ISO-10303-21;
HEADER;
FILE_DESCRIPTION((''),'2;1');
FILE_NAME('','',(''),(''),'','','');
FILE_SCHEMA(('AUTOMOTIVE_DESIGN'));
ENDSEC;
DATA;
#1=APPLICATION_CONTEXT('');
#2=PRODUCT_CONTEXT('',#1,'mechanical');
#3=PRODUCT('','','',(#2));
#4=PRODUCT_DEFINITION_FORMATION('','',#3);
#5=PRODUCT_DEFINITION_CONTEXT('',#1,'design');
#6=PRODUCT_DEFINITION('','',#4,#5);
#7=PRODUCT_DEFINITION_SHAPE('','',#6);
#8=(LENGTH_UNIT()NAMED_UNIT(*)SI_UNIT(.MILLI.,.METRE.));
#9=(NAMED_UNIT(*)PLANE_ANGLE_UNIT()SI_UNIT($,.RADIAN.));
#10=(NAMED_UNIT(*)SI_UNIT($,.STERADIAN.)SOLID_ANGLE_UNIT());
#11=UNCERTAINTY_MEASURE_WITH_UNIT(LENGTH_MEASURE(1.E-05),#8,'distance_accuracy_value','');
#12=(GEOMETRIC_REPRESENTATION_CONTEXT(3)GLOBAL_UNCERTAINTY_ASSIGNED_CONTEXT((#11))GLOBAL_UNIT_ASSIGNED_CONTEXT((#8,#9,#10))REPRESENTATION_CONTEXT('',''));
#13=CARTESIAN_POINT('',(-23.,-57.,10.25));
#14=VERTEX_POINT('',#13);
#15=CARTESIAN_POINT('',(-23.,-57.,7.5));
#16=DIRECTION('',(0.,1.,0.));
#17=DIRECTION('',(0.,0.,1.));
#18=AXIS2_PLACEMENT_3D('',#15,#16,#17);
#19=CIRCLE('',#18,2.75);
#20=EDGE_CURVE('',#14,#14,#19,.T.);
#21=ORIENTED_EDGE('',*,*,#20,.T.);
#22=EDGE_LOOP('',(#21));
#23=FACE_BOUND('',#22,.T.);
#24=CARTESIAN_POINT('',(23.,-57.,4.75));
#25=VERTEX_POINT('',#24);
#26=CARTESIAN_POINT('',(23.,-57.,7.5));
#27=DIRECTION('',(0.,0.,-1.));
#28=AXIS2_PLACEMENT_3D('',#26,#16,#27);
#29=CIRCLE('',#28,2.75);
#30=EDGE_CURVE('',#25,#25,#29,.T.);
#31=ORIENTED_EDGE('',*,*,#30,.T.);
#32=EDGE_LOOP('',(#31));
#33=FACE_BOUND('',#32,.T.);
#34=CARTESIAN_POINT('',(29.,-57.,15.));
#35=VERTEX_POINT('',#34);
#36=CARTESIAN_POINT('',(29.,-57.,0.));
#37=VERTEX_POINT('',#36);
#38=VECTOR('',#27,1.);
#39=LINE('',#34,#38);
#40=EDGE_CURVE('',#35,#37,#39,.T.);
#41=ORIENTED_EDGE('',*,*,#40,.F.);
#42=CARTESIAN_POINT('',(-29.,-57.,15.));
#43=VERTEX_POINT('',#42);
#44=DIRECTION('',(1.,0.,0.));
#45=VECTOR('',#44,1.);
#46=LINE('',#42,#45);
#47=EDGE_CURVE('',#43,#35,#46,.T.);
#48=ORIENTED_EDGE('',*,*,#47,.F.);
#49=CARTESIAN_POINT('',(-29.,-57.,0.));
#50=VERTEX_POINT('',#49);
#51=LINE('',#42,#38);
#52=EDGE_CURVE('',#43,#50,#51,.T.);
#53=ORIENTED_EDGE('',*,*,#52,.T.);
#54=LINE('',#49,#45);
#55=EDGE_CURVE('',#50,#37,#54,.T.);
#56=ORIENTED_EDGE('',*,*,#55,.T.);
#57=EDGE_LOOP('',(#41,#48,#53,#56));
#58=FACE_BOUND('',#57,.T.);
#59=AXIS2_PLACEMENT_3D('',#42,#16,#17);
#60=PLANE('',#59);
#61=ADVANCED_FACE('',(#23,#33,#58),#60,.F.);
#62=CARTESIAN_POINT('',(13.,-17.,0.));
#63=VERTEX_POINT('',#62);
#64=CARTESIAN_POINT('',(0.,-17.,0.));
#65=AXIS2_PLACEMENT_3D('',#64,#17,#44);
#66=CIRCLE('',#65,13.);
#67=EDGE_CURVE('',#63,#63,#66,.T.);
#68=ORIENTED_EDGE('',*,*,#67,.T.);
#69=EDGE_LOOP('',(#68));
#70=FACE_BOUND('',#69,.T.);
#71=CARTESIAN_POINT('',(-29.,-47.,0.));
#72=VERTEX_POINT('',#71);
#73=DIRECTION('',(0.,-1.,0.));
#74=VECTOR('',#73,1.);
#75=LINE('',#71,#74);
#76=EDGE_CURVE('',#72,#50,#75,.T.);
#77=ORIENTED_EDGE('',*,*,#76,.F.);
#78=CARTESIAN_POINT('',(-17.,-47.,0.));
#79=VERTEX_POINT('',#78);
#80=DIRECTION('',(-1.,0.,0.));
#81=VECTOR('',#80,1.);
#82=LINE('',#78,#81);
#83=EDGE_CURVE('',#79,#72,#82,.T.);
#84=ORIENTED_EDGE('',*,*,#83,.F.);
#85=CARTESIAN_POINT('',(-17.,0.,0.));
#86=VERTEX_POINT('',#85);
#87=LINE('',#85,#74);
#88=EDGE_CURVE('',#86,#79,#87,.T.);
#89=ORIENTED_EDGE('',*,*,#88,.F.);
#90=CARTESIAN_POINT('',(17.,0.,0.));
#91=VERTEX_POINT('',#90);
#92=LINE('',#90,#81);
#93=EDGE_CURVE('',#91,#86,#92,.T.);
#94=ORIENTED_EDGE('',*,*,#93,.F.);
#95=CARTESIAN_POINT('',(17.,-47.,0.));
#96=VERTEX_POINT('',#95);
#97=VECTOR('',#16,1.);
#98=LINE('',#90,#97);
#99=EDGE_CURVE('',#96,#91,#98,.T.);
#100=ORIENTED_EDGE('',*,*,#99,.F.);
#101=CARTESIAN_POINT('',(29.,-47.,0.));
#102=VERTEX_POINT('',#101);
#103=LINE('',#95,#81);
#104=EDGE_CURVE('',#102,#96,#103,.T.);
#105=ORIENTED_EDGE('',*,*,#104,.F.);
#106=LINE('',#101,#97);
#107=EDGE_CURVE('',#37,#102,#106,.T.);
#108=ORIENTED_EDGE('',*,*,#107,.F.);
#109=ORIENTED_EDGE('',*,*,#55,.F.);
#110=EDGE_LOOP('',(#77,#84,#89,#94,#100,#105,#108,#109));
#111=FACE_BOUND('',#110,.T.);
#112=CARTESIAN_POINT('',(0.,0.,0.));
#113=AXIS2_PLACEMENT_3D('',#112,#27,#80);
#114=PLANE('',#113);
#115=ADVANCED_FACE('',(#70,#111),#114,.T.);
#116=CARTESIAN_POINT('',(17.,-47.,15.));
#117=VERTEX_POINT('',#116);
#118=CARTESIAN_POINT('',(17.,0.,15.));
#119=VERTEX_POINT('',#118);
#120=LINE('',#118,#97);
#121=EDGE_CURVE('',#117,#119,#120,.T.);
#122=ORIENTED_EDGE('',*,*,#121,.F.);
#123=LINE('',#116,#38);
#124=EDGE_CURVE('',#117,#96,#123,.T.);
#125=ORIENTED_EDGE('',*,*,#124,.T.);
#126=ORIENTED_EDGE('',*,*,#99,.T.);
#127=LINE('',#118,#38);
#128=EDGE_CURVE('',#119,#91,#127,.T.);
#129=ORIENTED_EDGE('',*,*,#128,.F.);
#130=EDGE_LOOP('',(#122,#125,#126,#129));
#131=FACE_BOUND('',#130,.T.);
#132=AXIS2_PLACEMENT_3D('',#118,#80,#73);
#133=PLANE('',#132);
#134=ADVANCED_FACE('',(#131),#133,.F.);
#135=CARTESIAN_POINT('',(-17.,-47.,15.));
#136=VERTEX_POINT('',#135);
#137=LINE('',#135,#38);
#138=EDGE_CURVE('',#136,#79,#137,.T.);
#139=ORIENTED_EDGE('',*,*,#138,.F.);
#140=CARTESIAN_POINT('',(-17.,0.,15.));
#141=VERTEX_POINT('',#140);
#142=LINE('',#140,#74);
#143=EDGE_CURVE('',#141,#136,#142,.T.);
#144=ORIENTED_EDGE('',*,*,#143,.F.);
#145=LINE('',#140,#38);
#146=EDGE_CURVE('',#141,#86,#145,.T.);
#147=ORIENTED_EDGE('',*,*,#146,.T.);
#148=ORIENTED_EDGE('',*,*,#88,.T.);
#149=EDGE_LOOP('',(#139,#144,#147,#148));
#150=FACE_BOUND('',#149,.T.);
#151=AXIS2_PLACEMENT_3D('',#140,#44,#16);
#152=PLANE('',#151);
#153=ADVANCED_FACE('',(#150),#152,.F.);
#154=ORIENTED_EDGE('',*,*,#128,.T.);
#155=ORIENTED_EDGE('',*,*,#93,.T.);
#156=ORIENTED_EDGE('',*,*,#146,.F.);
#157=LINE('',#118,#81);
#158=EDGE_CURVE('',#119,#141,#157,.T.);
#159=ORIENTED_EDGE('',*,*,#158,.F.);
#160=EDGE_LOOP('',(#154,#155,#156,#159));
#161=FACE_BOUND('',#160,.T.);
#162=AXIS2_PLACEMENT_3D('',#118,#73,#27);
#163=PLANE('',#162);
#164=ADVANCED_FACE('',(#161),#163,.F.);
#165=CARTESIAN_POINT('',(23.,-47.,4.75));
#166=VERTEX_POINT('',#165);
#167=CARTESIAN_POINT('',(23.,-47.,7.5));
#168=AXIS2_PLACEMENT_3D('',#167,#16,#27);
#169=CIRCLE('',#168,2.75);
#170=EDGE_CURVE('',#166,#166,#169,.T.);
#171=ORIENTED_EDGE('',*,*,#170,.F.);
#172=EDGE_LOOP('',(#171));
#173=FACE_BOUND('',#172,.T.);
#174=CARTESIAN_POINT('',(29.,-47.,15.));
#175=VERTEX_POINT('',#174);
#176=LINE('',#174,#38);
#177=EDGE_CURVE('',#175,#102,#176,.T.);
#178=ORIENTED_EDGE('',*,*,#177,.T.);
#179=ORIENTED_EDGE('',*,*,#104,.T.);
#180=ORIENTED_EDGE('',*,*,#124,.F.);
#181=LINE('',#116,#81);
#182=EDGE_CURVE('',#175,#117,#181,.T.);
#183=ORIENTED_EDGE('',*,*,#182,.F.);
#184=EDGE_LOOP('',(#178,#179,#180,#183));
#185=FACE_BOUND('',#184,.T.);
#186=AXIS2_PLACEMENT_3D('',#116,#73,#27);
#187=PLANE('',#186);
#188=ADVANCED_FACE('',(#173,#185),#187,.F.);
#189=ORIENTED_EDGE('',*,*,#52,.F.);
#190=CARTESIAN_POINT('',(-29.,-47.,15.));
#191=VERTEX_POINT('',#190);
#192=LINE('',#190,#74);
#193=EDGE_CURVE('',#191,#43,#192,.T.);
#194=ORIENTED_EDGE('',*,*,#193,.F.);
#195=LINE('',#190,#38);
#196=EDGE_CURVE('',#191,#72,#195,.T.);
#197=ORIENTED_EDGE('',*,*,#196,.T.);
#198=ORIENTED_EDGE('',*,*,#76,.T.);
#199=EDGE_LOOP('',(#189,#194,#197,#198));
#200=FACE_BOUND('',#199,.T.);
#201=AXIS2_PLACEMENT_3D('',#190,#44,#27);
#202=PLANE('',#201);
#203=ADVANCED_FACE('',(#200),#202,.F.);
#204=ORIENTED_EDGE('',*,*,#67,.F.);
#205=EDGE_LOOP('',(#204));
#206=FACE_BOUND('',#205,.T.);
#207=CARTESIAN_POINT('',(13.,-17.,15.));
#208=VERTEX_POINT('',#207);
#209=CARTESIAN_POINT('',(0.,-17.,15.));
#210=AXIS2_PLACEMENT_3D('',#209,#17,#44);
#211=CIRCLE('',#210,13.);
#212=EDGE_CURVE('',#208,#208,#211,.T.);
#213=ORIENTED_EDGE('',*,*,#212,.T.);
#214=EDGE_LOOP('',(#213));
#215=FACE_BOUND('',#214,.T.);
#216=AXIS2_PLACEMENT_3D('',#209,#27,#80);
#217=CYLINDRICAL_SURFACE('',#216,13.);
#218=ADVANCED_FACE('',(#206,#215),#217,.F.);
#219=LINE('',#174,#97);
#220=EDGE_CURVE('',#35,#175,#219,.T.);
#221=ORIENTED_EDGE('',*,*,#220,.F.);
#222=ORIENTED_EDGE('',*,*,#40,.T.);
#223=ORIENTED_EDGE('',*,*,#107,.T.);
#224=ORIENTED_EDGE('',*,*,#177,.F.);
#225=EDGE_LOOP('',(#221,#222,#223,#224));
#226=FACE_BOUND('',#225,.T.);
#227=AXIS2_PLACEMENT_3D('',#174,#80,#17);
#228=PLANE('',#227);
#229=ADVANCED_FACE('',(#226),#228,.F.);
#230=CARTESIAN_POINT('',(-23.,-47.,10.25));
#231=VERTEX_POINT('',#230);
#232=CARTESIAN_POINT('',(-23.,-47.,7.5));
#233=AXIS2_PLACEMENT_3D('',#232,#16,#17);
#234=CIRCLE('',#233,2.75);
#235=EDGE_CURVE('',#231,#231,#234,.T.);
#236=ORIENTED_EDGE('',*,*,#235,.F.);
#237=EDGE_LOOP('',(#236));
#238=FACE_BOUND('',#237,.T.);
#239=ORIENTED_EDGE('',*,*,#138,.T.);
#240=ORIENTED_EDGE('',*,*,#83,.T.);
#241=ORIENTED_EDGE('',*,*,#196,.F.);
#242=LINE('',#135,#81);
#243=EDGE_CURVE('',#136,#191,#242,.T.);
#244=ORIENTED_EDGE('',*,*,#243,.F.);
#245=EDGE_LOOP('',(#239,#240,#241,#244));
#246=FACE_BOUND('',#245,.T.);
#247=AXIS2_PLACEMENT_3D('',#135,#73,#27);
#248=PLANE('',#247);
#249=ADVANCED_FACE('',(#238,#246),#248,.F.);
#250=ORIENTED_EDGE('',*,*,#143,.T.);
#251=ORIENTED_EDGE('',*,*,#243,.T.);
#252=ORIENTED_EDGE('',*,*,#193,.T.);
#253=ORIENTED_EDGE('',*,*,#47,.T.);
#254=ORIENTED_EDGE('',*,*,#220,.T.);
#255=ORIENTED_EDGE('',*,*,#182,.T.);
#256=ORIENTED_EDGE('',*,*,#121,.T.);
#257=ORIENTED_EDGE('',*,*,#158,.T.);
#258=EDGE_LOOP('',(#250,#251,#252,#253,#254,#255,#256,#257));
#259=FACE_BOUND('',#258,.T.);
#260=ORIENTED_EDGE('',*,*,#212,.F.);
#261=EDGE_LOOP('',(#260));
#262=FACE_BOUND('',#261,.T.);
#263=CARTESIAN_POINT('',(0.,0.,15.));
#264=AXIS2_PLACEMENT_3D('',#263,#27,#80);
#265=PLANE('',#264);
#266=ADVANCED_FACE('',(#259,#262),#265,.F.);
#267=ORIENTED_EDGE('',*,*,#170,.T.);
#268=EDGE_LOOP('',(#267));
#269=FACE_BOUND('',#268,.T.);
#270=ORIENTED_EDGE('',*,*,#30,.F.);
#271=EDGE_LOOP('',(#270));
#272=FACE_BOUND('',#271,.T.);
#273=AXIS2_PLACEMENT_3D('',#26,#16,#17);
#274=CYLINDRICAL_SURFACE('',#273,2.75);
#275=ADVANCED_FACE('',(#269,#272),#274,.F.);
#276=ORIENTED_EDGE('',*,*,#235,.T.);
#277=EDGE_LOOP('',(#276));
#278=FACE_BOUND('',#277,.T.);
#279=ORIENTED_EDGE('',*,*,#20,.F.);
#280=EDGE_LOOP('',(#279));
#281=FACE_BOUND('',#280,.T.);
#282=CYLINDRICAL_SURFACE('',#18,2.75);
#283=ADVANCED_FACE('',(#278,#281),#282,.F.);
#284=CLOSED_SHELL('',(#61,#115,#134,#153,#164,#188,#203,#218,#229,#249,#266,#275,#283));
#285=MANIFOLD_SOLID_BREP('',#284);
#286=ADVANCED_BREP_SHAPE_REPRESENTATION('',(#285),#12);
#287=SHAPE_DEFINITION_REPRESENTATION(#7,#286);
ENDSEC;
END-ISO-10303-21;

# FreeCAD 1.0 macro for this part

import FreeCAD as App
import Part
import Sketcher

V = App.Vector
Q = App.Units.Quantity

doc = App.newDocument("Part")
body = doc.addObject("PartDesign::Body", "Body")

sketch1 = body.newObject("Sketcher::SketchObject", "Sketch")
sketch1.AttachmentSupport = (doc.getObject("XY_Plane"), [""])
sketch1.MapMode = "FlatFace"
sketch1.addGeometry([
    Part.LineSegment(V(17, 0, 0), V(-17, 0, 0)),
    Part.LineSegment(V(-17, 0, 0), V(-17, -47, 0)),
    Part.LineSegment(V(-17, -47, 0), V(-29, -47, 0)),
    Part.LineSegment(V(-29, -47, 0), V(-29, -57, 0)),
    Part.LineSegment(V(-29, -57, 0), V(29, -57, 0)),
    Part.LineSegment(V(29, -57, 0), V(29, -47, 0)),
    Part.LineSegment(V(29, -47, 0), V(17, -47, 0)),
    Part.LineSegment(V(17, -47, 0), V(17, 0, 0)),
    Part.Circle(V(0, -17, 0), V(0, 0, 1), 13),
], False)
sketch1.addConstraint([
    Sketcher.Constraint("Coincident", 0, 2, 1, 1),
    Sketcher.Constraint("Coincident", 1, 2, 2, 1),
    Sketcher.Constraint("Coincident", 2, 2, 3, 1),
    Sketcher.Constraint("Coincident", 3, 2, 4, 1),
    Sketcher.Constraint("Coincident", 4, 2, 5, 1),
    Sketcher.Constraint("Coincident", 5, 2, 6, 1),
    Sketcher.Constraint("Coincident", 6, 2, 7, 1),
    Sketcher.Constraint("Coincident", 7, 2, 0, 1),
    Sketcher.Constraint("Horizontal", 0),
    Sketcher.Constraint("Vertical", 1),
    Sketcher.Constraint("Horizontal", 2),
    Sketcher.Constraint("Vertical", 3),
    Sketcher.Constraint("Horizontal", 4),
    Sketcher.Constraint("Vertical", 5),
    Sketcher.Constraint("Horizontal", 6),
    Sketcher.Constraint("Vertical", 7),
    Sketcher.Constraint("Symmetric", 0, 2, 7, 2, -1, 1),
    Sketcher.Constraint("Symmetric", 2, 2, 5, 2, -2),
    Sketcher.Constraint("PointOnObject", 8, 3, -2),
    Sketcher.Constraint("Diameter", 8, Q("26 mm")),
    Sketcher.Constraint("DistanceX", 0, 2, 0, 1, Q("34 mm")),
    Sketcher.Constraint("DistanceX", 2, 2, 2, 1, Q("12 mm")),
    Sketcher.Constraint("DistanceY", 1, 2, 1, 1, Q("47 mm")),
    Sketcher.Constraint("DistanceY", 3, 2, 3, 1, Q("10 mm")),
    Sketcher.Constraint("DistanceY", 8, 3, -1, 1, Q("17 mm")),
])
pad1 = body.newObject("PartDesign::Pad", "Pad")
pad1.Profile = sketch1
pad1.Length = 15

sketch2 = body.newObject("Sketcher::SketchObject", "Sketch001")
sketch2.AttachmentSupport = (doc.getObject("XZ_Plane"), [""])
sketch2.MapMode = "FlatFace"
sketch2.AttachmentOffset = App.Placement(V(0, 0, 47), App.Rotation())
sketch2.addGeometry([
    Part.Circle(V(-23, 7.5, 0), V(0, 0, 1), 2.8),
    Part.Circle(V(23, 7.5, 0), V(0, 0, 1), 2.8),
], False)
sketch2.addConstraint([
    Sketcher.Constraint("Equal", 0, 1),
    Sketcher.Constraint("Symmetric", 0, 3, 1, 3, -2),
    Sketcher.Constraint("Diameter", 0, Q("5.5 mm")),
    Sketcher.Constraint("DistanceX", 0, 3, -1, 1, Q("23 mm")),
    Sketcher.Constraint("DistanceY", -1, 1, 0, 3, Q("7.5 mm")),
])
pocket1 = body.newObject("PartDesign::Pocket", "Pocket")
pocket1.Profile = sketch2
pocket1.Type = "ThroughAll"
pocket1.Reversed = True

doc.recompute()
